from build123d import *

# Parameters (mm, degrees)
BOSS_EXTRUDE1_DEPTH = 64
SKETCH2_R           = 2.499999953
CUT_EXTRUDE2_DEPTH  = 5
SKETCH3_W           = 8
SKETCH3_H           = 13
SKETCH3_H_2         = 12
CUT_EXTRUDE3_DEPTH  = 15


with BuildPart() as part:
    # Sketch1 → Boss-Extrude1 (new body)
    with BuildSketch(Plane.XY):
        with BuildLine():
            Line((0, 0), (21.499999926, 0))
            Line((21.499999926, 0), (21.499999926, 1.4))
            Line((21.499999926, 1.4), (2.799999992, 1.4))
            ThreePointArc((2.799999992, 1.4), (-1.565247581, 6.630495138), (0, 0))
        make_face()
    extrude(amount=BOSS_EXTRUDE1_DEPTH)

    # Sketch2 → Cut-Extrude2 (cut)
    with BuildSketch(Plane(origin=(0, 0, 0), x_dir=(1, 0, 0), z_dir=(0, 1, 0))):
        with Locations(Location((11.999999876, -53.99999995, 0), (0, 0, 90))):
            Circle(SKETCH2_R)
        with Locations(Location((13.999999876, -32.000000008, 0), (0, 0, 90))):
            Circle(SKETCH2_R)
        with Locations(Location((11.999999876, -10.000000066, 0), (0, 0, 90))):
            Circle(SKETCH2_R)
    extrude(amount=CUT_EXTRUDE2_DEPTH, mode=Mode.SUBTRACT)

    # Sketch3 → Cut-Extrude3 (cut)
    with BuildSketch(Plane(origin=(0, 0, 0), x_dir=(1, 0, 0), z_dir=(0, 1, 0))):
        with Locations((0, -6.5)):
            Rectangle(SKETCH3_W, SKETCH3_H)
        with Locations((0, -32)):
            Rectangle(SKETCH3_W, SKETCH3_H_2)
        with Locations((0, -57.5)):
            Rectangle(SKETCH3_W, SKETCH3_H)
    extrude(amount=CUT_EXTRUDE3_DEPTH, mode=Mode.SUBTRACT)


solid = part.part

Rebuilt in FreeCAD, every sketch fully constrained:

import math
import FreeCAD as App
import Part
import Sketcher
from FreeCAD import Vector
Q = App.Units.Quantity


def add_polygon(sketch, points):
    """Adds a closed chain of lines whose ends are joined by coincident constraints."""
    first, n = sketch.GeometryCount, len(points)
    for a, b in zip(points, points[1:] + points[:1]):
        sketch.addGeometry(Part.LineSegment(App.Vector(*a, 0), App.Vector(*b, 0)), False)
    for i in range(n):
        sketch.addConstraint(Sketcher.Constraint("Coincident", first + i, 2, first + (i + 1) % n, 1))

doc = App.newDocument("Part")
body = doc.addObject("PartDesign::Body", "Body")

# Sketch on XY plane
sketch1 = body.newObject("Sketcher::SketchObject", "Sketch")
sketch1.AttachmentSupport = (doc.getObject("XY_Plane"), [""])
sketch1.MapMode = "FlatFace"
sketch1.addGeometry([
    Part.LineSegment(Vector(0, 0, 0), Vector(21.5, 0, 0)),
    Part.LineSegment(Vector(21.5, 0, 0), Vector(21.5, 1.4, 0)),
    Part.LineSegment(Vector(21.5, 1.4, 0), Vector(2.8, 1.4, 0)),
    Part.ArcOfCircle(Part.Circle(Vector(0, 3.5, 0), Vector(0, 0, 1), 3.5), math.radians(-37), math.radians(270)),
], False)
sketch1.addConstraint([
    Sketcher.Constraint("Coincident", 0, 2, 1, 1),
    Sketcher.Constraint("Coincident", 1, 2, 2, 1),
    Sketcher.Constraint("Coincident", 2, 2, 3, 1),
    Sketcher.Constraint("Tangent", 3, 2, 0, 1),
    Sketcher.Constraint("Horizontal", 0),
    Sketcher.Constraint("Vertical", 1),
    Sketcher.Constraint("Horizontal", 2),
    Sketcher.Constraint("Coincident", 3, 2, -1, 1),
    Sketcher.Constraint("Radius", 3, Q("3.5 mm")),
    Sketcher.Constraint("DistanceX", 0, 1, 0, 2, Q("21.5 mm")),
    Sketcher.Constraint("DistanceX", 2, 2, 2, 1, Q("18.7 mm")),
])
pad1 = body.newObject("PartDesign::Pad", "Pad")
pad1.Profile = sketch1
pad1.Length = 64

# Sketch on XZ plane
sketch2 = body.newObject("Sketcher::SketchObject", "Sketch001")
sketch2.AttachmentSupport = (doc.getObject("XZ_Plane"), [""])
sketch2.MapMode = "FlatFace"
sketch2.addGeometry([
    Part.Circle(Vector(12, 54, 0), Vector(0, 0, 1), 2.5),
    Part.Circle(Vector(14, 32, 0), Vector(0, 0, 1), 2.5),
    Part.Circle(Vector(12, 10, 0), Vector(0, 0, 1), 2.5),
], False)
sketch2.addConstraint([
    Sketcher.Constraint("Equal", 0, 1),
    Sketcher.Constraint("Equal", 1, 2),
    Sketcher.Constraint("Vertical", 0, 3, 2, 3),
    Sketcher.Constraint("Diameter", 0, Q("5 mm")),
    Sketcher.Constraint("DistanceX", -1, 1, 0, 3, Q("12 mm")),
    Sketcher.Constraint("DistanceY", -1, 1, 0, 3, Q("54 mm")),
    Sketcher.Constraint("DistanceX", -1, 1, 1, 3, Q("14 mm")),
    Sketcher.Constraint("DistanceY", -1, 1, 1, 3, Q("32 mm")),
    Sketcher.Constraint("DistanceY", -1, 1, 2, 3, Q("10 mm")),
])
pocket1 = body.newObject("PartDesign::Pocket", "Pocket")
pocket1.Profile = sketch2
pocket1.Length = 5

# Sketch on XZ plane
sketch3 = body.newObject("Sketcher::SketchObject", "Sketch002")
sketch3.AttachmentSupport = (doc.getObject("XZ_Plane"), [""])
sketch3.MapMode = "FlatFace"
add_polygon(sketch3, [(-4, 0), (-4, 13), (4, 13), (4, 0)])  # lines 0-3
add_polygon(sketch3, [(-4, 26), (-4, 38), (4, 38), (4, 26)])  # lines 4-7
add_polygon(sketch3, [(-4, 51), (-4, 64), (4, 64), (4, 51)])  # lines 8-11
sketch3.addConstraint([
    Sketcher.Constraint("Vertical", 0),
    Sketcher.Constraint("Horizontal", 1),
    Sketcher.Constraint("Vertical", 2),
    Sketcher.Constraint("Horizontal", 3),
    Sketcher.Constraint("Vertical", 4),
    Sketcher.Constraint("Horizontal", 5),
    Sketcher.Constraint("Vertical", 6),
    Sketcher.Constraint("Horizontal", 7),
    Sketcher.Constraint("Vertical", 8),
    Sketcher.Constraint("Horizontal", 9),
    Sketcher.Constraint("Vertical", 10),
    Sketcher.Constraint("Horizontal", 11),
    Sketcher.Constraint("Symmetric", 2, 2, 3, 2, -1, 1),
    Sketcher.Constraint("Vertical", 3, 2, 4, 2),
    Sketcher.Constraint("Vertical", 2, 2, 5, 2),
    Sketcher.Constraint("Vertical", 7, 2, 8, 2),
    Sketcher.Constraint("Vertical", 6, 2, 9, 2),
    Sketcher.Constraint("Equal", 2, 8),
    Sketcher.Constraint("DistanceX", 1, 1, 1, 2, Q("8 mm")),
    Sketcher.Constraint("DistanceY", 0, 1, 0, 2, Q("13 mm")),
    Sketcher.Constraint("DistanceY", 4, 1, 4, 2, Q("12 mm")),
    Sketcher.Constraint("DistanceY", -1, 1, 4, 2, Q("38 mm")),
    Sketcher.Constraint("DistanceY", -1, 1, 8, 2, Q("64 mm")),
])
pocket2 = body.newObject("PartDesign::Pocket", "Pocket001")
pocket2.Profile = sketch3
pocket2.Length = 15

doc.recompute()
